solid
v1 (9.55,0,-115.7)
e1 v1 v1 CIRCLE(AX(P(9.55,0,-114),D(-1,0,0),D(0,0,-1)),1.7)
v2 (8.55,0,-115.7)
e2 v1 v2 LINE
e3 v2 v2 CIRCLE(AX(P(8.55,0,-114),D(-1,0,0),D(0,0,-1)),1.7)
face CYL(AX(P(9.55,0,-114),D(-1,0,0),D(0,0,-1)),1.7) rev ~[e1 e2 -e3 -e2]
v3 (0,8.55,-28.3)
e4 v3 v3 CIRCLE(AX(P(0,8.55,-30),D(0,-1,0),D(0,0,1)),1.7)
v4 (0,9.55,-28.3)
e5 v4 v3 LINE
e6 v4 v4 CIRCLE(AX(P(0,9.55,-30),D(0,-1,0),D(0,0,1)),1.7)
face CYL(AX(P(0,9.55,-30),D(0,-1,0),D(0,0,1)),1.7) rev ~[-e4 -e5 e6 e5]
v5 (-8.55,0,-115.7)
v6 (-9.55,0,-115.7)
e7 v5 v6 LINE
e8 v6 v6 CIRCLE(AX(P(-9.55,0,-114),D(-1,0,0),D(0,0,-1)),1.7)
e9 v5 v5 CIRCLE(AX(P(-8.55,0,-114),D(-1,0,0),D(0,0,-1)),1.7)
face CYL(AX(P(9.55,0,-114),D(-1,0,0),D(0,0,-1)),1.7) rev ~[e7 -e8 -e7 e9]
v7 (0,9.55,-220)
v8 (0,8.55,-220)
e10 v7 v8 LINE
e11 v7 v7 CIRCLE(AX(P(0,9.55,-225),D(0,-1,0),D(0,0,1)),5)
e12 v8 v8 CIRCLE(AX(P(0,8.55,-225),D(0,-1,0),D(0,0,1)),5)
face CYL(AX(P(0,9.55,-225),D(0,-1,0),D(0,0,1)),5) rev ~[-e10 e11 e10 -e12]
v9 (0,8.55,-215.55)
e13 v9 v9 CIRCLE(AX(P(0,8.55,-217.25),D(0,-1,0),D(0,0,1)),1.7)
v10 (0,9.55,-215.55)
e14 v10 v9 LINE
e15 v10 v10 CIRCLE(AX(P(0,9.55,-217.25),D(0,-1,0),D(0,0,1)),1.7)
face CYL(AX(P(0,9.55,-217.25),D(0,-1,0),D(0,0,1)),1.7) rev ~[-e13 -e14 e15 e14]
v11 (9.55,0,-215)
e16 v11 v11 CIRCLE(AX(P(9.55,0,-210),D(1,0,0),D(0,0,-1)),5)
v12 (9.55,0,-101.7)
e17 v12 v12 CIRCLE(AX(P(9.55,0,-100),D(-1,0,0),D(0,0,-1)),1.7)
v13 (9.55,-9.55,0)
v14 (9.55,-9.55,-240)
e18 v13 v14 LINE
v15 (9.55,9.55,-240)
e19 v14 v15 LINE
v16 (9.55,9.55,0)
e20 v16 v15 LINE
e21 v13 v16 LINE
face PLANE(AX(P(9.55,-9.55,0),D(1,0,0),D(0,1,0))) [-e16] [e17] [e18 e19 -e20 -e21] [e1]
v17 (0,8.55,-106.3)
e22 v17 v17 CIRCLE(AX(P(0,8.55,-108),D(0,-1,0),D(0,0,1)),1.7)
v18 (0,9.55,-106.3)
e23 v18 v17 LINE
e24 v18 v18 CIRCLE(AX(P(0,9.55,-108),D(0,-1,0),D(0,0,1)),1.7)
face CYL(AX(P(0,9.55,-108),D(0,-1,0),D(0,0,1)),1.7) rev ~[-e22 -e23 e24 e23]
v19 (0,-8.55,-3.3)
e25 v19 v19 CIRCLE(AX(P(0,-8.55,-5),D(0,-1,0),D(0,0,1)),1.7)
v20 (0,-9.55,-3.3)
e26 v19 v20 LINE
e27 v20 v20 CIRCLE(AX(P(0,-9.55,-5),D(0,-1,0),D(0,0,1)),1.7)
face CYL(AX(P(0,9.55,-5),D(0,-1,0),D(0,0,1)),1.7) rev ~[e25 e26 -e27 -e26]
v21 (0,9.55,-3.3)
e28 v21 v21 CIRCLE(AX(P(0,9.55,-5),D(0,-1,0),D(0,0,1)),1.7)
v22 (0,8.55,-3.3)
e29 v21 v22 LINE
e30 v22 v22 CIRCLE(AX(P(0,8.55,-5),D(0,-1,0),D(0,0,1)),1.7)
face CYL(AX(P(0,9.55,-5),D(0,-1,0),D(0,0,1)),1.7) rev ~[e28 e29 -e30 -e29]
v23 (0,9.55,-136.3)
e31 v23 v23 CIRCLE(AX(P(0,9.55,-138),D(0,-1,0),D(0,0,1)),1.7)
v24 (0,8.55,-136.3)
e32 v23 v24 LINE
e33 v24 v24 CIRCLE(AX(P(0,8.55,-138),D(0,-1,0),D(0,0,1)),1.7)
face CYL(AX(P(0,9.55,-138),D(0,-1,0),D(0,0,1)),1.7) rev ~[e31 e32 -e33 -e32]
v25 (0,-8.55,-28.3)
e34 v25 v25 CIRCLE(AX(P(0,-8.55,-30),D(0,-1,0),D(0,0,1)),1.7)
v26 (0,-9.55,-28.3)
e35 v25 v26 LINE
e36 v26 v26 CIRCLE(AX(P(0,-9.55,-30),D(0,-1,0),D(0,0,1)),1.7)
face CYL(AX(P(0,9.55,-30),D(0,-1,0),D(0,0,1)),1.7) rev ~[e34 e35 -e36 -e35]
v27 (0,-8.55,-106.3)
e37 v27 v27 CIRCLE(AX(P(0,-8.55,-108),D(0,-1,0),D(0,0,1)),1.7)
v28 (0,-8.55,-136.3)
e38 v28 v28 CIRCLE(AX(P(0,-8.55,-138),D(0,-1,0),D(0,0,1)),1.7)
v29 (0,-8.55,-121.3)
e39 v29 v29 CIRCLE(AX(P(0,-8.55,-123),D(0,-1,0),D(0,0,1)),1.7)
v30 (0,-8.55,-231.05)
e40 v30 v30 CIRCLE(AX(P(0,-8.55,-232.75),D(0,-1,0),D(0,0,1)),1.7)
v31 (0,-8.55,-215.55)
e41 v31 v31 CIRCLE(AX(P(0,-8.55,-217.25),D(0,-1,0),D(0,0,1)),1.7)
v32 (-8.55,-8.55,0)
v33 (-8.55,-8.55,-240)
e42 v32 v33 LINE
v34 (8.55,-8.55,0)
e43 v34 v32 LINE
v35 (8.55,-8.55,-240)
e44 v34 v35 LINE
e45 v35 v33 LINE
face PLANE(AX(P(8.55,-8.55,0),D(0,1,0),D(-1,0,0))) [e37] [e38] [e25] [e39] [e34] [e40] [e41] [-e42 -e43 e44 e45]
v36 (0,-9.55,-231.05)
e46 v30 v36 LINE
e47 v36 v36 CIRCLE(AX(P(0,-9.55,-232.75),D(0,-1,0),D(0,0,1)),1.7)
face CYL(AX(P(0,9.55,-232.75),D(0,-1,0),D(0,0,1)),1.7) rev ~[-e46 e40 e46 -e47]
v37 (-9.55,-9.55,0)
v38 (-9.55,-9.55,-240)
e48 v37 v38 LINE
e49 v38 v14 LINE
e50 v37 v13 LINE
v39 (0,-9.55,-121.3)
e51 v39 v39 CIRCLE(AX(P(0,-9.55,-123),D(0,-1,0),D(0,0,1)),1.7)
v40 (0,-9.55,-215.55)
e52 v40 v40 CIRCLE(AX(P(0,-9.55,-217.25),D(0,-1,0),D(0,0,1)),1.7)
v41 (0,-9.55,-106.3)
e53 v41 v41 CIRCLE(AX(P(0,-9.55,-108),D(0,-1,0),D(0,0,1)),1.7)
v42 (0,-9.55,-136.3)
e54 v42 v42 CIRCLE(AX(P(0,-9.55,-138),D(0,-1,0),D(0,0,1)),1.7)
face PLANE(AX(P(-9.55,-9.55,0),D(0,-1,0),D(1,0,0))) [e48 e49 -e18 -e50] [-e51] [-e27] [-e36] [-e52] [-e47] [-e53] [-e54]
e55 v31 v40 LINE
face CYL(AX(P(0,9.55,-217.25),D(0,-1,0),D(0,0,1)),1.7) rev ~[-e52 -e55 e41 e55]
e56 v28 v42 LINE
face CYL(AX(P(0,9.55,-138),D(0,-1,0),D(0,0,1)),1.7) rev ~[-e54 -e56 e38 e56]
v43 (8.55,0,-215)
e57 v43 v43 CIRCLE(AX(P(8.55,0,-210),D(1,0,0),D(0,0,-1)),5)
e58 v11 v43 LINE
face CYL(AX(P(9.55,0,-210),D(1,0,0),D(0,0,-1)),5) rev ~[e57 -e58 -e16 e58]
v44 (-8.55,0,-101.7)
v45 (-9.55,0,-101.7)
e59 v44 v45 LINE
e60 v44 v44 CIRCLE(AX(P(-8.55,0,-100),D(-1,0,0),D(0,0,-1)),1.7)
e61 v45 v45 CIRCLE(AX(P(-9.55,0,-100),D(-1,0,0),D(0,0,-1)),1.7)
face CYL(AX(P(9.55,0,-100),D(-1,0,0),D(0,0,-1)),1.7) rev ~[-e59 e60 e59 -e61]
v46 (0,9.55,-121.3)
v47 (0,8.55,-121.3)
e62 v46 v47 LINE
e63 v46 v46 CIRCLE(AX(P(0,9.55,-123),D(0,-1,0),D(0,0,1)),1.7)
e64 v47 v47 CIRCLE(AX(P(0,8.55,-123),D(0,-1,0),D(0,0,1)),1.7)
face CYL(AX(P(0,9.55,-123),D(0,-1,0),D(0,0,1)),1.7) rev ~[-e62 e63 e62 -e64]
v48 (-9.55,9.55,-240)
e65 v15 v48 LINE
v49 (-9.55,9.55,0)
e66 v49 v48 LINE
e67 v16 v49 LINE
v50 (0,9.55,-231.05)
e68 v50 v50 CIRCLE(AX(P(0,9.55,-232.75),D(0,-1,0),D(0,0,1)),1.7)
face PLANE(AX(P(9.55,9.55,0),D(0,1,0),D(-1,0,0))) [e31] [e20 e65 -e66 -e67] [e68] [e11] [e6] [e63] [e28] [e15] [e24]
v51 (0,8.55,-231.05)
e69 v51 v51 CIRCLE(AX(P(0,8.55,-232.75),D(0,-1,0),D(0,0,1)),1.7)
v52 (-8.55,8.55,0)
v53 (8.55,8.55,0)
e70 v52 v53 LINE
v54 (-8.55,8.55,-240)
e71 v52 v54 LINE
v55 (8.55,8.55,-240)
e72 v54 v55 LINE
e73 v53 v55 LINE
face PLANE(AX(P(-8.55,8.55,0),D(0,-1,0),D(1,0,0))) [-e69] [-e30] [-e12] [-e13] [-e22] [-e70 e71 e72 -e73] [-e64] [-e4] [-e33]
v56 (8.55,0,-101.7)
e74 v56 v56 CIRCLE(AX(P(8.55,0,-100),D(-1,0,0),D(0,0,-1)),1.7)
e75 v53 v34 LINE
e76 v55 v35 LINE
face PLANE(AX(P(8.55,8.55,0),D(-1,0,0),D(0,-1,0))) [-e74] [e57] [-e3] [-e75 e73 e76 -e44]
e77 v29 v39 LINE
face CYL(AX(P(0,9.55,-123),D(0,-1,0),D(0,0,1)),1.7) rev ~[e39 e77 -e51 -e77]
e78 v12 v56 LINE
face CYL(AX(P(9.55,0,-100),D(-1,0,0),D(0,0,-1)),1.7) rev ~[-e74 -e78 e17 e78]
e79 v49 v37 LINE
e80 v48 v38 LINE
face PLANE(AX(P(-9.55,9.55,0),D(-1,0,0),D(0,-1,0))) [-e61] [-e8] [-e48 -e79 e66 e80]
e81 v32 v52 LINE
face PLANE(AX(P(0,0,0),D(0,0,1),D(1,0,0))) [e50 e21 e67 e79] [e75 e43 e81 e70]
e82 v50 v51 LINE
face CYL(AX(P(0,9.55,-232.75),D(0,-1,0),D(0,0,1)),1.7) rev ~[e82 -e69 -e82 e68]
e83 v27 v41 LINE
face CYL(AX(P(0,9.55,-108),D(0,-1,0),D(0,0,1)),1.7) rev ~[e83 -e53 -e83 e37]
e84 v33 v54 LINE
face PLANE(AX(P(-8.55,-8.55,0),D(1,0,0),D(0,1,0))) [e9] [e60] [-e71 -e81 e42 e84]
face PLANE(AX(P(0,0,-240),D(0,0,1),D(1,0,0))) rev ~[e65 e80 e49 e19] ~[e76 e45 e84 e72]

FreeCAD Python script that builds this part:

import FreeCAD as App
import Part
import Sketcher
from FreeCAD import Vector
Q = App.Units.Quantity


def add_polygon(sketch, points):
    """Adds a closed chain of lines whose ends are joined by coincident constraints."""
    first, n = sketch.GeometryCount, len(points)
    for a, b in zip(points, points[1:] + points[:1]):
        sketch.addGeometry(Part.LineSegment(App.Vector(*a, 0), App.Vector(*b, 0)), False)
    for i in range(n):
        sketch.addConstraint(Sketcher.Constraint("Coincident", first + i, 2, first + (i + 1) % n, 1))

doc = App.newDocument("Part")
body = doc.addObject("PartDesign::Body", "Body")

# Sketch on XY plane
sketch1 = body.newObject("Sketcher::SketchObject", "Sketch")
sketch1.AttachmentSupport = (doc.getObject("XY_Plane"), [""])
sketch1.MapMode = "FlatFace"
add_polygon(sketch1, [(-10, 10), (-10, -10), (10, -10), (10, 10)])  # lines 0-3
add_polygon(sketch1, [(-9, -9), (-9, 9), (9, 9), (9, -9)])  # lines 4-7
sketch1.addConstraint(Sketcher.Constraint("Vertical", 0))
sketch1.addConstraint(Sketcher.Constraint("Horizontal", 1))
sketch1.addConstraint(Sketcher.Constraint("Vertical", 2))
sketch1.addConstraint(Sketcher.Constraint("Horizontal", 3))
sketch1.addConstraint(Sketcher.Constraint("Vertical", 4))
sketch1.addConstraint(Sketcher.Constraint("Horizontal", 5))
sketch1.addConstraint(Sketcher.Constraint("Vertical", 6))
sketch1.addConstraint(Sketcher.Constraint("Horizontal", 7))
sketch1.addConstraint(Sketcher.Constraint("Symmetric", 0, 2, 2, 2, -1, 1))
sketch1.addConstraint(Sketcher.Constraint("Symmetric", 4, 2, 6, 2, -1, 1))
sketch1.addConstraint(Sketcher.Constraint("Equal", 3, 0))
sketch1.addConstraint(Sketcher.Constraint("Equal", 7, 4))
sketch1.addConstraint(Sketcher.Constraint("DistanceX", 1, 1, 1, 2, Q("19.1 mm")))
sketch1.addConstraint(Sketcher.Constraint("DistanceX", 3, 2, 4, 2, Q("1 mm")))
pad1 = body.newObject("PartDesign::Pad", "Pad")
pad1.Profile = sketch1
pad1.Length = 240
pad1.Reversed = True

# Sketch on XZ plane
sketch2 = body.newObject("Sketcher::SketchObject", "Sketch001")
sketch2.AttachmentSupport = (doc.getObject("XZ_Plane"), [""])
sketch2.MapMode = "FlatFace"
sketch2.AttachmentOffset = App.Placement(Vector(0, 0, -9.55), App.Rotation())
sketch2.addGeometry(Part.Circle(Vector(0, -5, 0), Vector(0, 0, 1), 1.7), False)
sketch2.addGeometry(Part.Circle(Vector(0, -30, 0), Vector(0, 0, 1), 1.7), False)
sketch2.addGeometry(Part.Circle(Vector(0, -108, 0), Vector(0, 0, 1), 1.7), False)
sketch2.addGeometry(Part.Circle(Vector(0, -123, 0), Vector(0, 0, 1), 1.7), False)
sketch2.addGeometry(Part.Circle(Vector(0, -138, 0), Vector(0, 0, 1), 1.7), False)
sketch2.addGeometry(Part.Circle(Vector(0, -217.2, 0), Vector(0, 0, 1), 1.7), False)
sketch2.addGeometry(Part.Circle(Vector(0, -232.8, 0), Vector(0, 0, 1), 1.7), False)
sketch2.addConstraint(Sketcher.Constraint("Equal", 0, 1))
sketch2.addConstraint(Sketcher.Constraint("Equal", 1, 2))
sketch2.addConstraint(Sketcher.Constraint("Equal", 2, 3))
sketch2.addConstraint(Sketcher.Constraint("Equal", 3, 4))
sketch2.addConstraint(Sketcher.Constraint("Equal", 4, 5))
sketch2.addConstraint(Sketcher.Constraint("Equal", 5, 6))
sketch2.addConstraint(Sketcher.Constraint("PointOnObject", 0, 3, -2))
sketch2.addConstraint(Sketcher.Constraint("PointOnObject", 1, 3, -2))
sketch2.addConstraint(Sketcher.Constraint("PointOnObject", 2, 3, -2))
sketch2.addConstraint(Sketcher.Constraint("PointOnObject", 3, 3, -2))
sketch2.addConstraint(Sketcher.Constraint("PointOnObject", 4, 3, -2))
sketch2.addConstraint(Sketcher.Constraint("PointOnObject", 5, 3, -2))
sketch2.addConstraint(Sketcher.Constraint("PointOnObject", 6, 3, -2))
sketch2.addConstraint(Sketcher.Constraint("Diameter", 0, Q("3.4 mm")))
sketch2.addConstraint(Sketcher.Constraint("DistanceY", 0, 3, -1, 1, Q("5 mm")))
sketch2.addConstraint(Sketcher.Constraint("DistanceY", 1, 3, -1, 1, Q("30 mm")))
sketch2.addConstraint(Sketcher.Constraint("DistanceY", 2, 3, -1, 1, Q("108 mm")))
sketch2.addConstraint(Sketcher.Constraint("DistanceY", 3, 3, -1, 1, Q("123 mm")))
sketch2.addConstraint(Sketcher.Constraint("DistanceY", 4, 3, -1, 1, Q("138 mm")))
sketch2.addConstraint(Sketcher.Constraint("DistanceY", 6, 3, 5, 3, Q("15.5 mm")))
sketch2.addConstraint(Sketcher.Constraint("DistanceY", 5, 3, -1, 1, Q("217.25 mm")))
doc.recompute()
hole = body.newObject("PartDesign::Hole", "Hole")
hole.Profile = sketch2
hole.ThreadType = "None"
hole.Diameter = 3.4
hole.DepthType = "ThroughAll"
hole.Reversed = True

# Sketch on XZ plane
sketch3 = body.newObject("Sketcher::SketchObject", "Sketch002")
sketch3.AttachmentSupport = (doc.getObject("XZ_Plane"), [""])
sketch3.MapMode = "FlatFace"
sketch3.AttachmentOffset = App.Placement(Vector(0, 0, -9.55), App.Rotation())
sketch3.addGeometry(Part.Circle(Vector(0, -225, 0), Vector(0, 0, 1), 5), False)
sketch3.addConstraint(Sketcher.Constraint("PointOnObject", 0, 3, -2))
sketch3.addConstraint(Sketcher.Constraint("Diameter", 0, Q("10 mm")))
sketch3.addConstraint(Sketcher.Constraint("DistanceY", 0, 3, -1, 1, Q("225 mm")))
doc.recompute()
hole2 = body.newObject("PartDesign::Hole", "Hole001")
hole2.Profile = sketch3
hole2.ThreadType = "None"
hole2.Diameter = 10
hole2.DepthType = "Dimension"
hole2.Depth = 1
hole2.DrillPoint = "Flat"
hole2.Reversed = True

# Sketch on YZ plane
sketch4 = body.newObject("Sketcher::SketchObject", "Sketch003")
sketch4.AttachmentSupport = (doc.getObject("YZ_Plane"), [""])
sketch4.MapMode = "FlatFace"
sketch4.AttachmentOffset = App.Placement(Vector(0, 0, 9.55), App.Rotation())
sketch4.addGeometry(Part.Circle(Vector(0, -210, 0), Vector(0, 0, 1), 5), False)
sketch4.addConstraint(Sketcher.Constraint("PointOnObject", 0, 3, -2))
sketch4.addConstraint(Sketcher.Constraint("Diameter", 0, Q("10 mm")))
sketch4.addConstraint(Sketcher.Constraint("DistanceY", 0, 3, -1, 1, Q("210 mm")))
pocket1 = body.newObject("PartDesign::Pocket", "Pocket")
pocket1.Profile = sketch4
pocket1.Type = "UpToFirst"

# Sketch on YZ plane
sketch5 = body.newObject("Sketcher::SketchObject", "Sketch004")
sketch5.AttachmentSupport = (doc.getObject("YZ_Plane"), [""])
sketch5.MapMode = "FlatFace"
sketch5.AttachmentOffset = App.Placement(Vector(0, 0, 9.55), App.Rotation())
sketch5.addGeometry(Part.Circle(Vector(0, -100, 0), Vector(0, 0, 1), 1.7), False)
sketch5.addGeometry(Part.Circle(Vector(0, -114, 0), Vector(0, 0, 1), 1.7), False)
sketch5.addConstraint(Sketcher.Constraint("Equal", 0, 1))
sketch5.addConstraint(Sketcher.Constraint("PointOnObject", 0, 3, -2))
sketch5.addConstraint(Sketcher.Constraint("PointOnObject", 1, 3, -2))
sketch5.addConstraint(Sketcher.Constraint("Diameter", 0, Q("3.4 mm")))
sketch5.addConstraint(Sketcher.Constraint("DistanceY", 0, 3, -1, 1, Q("100 mm")))
sketch5.addConstraint(Sketcher.Constraint("DistanceY", 1, 3, -1, 1, Q("114 mm")))
doc.recompute()
hole3 = body.newObject("PartDesign::Hole", "Hole002")
hole3.Profile = sketch5
hole3.ThreadType = "None"
hole3.Diameter = 3.4
hole3.DepthType = "ThroughAll"

doc.recompute()
